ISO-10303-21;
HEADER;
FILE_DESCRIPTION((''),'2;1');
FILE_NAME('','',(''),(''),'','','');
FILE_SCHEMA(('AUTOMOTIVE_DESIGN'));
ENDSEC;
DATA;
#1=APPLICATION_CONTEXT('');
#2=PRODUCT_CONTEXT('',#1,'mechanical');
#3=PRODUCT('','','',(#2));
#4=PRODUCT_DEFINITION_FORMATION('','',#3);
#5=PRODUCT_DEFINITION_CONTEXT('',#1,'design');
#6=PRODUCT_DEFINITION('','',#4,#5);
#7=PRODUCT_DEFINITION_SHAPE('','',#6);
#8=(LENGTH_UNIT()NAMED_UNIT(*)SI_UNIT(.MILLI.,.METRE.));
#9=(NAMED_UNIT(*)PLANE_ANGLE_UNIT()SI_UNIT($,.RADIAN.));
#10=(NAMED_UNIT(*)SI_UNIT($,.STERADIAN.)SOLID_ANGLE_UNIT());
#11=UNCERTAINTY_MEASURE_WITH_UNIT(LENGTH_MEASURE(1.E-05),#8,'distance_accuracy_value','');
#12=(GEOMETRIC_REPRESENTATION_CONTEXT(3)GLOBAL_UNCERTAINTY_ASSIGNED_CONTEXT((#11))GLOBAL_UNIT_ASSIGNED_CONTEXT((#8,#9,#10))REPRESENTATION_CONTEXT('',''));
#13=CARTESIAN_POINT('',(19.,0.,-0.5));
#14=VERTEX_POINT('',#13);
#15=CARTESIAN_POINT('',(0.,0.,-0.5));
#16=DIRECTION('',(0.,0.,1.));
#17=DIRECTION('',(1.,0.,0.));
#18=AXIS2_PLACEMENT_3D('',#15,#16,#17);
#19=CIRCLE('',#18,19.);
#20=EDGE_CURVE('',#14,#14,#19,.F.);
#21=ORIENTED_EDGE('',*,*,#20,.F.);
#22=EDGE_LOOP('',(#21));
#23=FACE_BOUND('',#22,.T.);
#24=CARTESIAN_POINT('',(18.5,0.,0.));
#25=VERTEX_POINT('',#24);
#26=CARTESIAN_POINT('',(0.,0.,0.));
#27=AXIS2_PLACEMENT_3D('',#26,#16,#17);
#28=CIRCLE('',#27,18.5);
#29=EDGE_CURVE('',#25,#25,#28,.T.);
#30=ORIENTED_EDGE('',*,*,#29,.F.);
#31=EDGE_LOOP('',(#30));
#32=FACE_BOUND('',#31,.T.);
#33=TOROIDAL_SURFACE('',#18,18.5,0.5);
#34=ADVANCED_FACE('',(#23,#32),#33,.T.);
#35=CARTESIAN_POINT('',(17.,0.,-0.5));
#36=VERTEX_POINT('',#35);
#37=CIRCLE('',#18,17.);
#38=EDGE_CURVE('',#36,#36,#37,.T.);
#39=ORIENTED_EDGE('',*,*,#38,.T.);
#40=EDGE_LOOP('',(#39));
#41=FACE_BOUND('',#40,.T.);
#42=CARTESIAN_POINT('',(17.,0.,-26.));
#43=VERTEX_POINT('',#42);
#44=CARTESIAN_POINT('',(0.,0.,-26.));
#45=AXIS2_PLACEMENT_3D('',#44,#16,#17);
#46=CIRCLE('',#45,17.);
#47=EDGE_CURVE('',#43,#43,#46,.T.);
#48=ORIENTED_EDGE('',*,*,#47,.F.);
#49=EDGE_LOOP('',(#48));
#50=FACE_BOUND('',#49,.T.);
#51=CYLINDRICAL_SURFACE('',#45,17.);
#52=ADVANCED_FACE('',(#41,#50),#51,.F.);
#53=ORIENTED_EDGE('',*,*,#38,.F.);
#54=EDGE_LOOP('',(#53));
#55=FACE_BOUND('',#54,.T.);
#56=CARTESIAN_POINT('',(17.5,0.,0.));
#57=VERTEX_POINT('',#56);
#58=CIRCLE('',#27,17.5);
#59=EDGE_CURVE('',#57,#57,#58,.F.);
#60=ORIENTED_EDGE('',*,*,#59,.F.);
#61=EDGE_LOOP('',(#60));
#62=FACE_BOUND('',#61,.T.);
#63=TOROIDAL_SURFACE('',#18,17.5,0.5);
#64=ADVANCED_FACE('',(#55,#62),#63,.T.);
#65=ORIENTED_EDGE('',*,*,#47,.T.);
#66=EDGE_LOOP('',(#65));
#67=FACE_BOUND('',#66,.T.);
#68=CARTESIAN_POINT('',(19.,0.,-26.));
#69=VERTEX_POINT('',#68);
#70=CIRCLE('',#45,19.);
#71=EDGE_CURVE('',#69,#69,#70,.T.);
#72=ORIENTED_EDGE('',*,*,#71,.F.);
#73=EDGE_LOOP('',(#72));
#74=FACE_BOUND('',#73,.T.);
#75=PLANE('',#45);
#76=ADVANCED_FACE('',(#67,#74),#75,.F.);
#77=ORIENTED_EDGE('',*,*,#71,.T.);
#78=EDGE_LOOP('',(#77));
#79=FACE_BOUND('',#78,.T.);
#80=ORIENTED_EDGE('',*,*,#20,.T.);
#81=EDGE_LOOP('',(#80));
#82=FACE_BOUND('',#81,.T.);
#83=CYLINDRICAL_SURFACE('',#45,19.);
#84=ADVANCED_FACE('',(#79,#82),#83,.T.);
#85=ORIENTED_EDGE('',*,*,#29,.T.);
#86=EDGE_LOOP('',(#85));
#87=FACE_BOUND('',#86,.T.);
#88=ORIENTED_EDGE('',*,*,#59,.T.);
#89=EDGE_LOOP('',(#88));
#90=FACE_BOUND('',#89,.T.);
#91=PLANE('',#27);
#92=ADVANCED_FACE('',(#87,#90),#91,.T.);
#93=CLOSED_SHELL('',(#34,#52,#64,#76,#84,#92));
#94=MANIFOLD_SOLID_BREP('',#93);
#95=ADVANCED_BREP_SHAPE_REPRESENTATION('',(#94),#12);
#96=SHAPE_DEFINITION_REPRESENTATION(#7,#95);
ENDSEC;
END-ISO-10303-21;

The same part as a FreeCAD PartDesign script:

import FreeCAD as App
import Part
import Sketcher

V = App.Vector


def edges_at(feature, points):
    """Names of the edges that pass closest to the given points."""
    edges = feature.Shape.Edges
    near = lambda p: min(range(len(edges)), key=lambda i: edges[i].distToShape(Part.Vertex(*p))[0])
    return sorted({f"Edge{near(p) + 1}" for p in points})

doc = App.newDocument("Part")
body = doc.addObject("PartDesign::Body", "Body")

# Sketch on XY plane
sketch1 = doc.addObject("Sketcher::SketchObject", "Sketch")
body.addObject(sketch1)
sketch1.AttachmentSupport = (doc.XY_Plane, [""])
sketch1.MapMode = "FlatFace"
sketch1.addGeometry([
    Part.Circle(V(0, 0, 0), V(0, 0, 1), 19),
    Part.Circle(V(0, 0, 0), V(0, 0, 1), 17),
], False)
sketch1.addConstraint([
    Sketcher.Constraint("Coincident", 0, 3, -1, 1),
    Sketcher.Constraint("Coincident", 1, 3, -1, 1),
    Sketcher.Constraint("Diameter", 0, 38.0),
    Sketcher.Constraint("Diameter", 1, 34.0),
])
pad1 = doc.addObject("PartDesign::Pad", "Pad")
body.addObject(pad1)
pad1.Profile = sketch1
pad1.Length = 26
pad1.Reversed = True
doc.recompute()

fillet = doc.addObject("PartDesign::Fillet", "Fillet")
body.addObject(fillet)
fillet.Base = (pad1, edges_at(pad1, [(-19, 0, 0), (-17, 0, 0)]))
fillet.Radius = 0.5

doc.recompute()
